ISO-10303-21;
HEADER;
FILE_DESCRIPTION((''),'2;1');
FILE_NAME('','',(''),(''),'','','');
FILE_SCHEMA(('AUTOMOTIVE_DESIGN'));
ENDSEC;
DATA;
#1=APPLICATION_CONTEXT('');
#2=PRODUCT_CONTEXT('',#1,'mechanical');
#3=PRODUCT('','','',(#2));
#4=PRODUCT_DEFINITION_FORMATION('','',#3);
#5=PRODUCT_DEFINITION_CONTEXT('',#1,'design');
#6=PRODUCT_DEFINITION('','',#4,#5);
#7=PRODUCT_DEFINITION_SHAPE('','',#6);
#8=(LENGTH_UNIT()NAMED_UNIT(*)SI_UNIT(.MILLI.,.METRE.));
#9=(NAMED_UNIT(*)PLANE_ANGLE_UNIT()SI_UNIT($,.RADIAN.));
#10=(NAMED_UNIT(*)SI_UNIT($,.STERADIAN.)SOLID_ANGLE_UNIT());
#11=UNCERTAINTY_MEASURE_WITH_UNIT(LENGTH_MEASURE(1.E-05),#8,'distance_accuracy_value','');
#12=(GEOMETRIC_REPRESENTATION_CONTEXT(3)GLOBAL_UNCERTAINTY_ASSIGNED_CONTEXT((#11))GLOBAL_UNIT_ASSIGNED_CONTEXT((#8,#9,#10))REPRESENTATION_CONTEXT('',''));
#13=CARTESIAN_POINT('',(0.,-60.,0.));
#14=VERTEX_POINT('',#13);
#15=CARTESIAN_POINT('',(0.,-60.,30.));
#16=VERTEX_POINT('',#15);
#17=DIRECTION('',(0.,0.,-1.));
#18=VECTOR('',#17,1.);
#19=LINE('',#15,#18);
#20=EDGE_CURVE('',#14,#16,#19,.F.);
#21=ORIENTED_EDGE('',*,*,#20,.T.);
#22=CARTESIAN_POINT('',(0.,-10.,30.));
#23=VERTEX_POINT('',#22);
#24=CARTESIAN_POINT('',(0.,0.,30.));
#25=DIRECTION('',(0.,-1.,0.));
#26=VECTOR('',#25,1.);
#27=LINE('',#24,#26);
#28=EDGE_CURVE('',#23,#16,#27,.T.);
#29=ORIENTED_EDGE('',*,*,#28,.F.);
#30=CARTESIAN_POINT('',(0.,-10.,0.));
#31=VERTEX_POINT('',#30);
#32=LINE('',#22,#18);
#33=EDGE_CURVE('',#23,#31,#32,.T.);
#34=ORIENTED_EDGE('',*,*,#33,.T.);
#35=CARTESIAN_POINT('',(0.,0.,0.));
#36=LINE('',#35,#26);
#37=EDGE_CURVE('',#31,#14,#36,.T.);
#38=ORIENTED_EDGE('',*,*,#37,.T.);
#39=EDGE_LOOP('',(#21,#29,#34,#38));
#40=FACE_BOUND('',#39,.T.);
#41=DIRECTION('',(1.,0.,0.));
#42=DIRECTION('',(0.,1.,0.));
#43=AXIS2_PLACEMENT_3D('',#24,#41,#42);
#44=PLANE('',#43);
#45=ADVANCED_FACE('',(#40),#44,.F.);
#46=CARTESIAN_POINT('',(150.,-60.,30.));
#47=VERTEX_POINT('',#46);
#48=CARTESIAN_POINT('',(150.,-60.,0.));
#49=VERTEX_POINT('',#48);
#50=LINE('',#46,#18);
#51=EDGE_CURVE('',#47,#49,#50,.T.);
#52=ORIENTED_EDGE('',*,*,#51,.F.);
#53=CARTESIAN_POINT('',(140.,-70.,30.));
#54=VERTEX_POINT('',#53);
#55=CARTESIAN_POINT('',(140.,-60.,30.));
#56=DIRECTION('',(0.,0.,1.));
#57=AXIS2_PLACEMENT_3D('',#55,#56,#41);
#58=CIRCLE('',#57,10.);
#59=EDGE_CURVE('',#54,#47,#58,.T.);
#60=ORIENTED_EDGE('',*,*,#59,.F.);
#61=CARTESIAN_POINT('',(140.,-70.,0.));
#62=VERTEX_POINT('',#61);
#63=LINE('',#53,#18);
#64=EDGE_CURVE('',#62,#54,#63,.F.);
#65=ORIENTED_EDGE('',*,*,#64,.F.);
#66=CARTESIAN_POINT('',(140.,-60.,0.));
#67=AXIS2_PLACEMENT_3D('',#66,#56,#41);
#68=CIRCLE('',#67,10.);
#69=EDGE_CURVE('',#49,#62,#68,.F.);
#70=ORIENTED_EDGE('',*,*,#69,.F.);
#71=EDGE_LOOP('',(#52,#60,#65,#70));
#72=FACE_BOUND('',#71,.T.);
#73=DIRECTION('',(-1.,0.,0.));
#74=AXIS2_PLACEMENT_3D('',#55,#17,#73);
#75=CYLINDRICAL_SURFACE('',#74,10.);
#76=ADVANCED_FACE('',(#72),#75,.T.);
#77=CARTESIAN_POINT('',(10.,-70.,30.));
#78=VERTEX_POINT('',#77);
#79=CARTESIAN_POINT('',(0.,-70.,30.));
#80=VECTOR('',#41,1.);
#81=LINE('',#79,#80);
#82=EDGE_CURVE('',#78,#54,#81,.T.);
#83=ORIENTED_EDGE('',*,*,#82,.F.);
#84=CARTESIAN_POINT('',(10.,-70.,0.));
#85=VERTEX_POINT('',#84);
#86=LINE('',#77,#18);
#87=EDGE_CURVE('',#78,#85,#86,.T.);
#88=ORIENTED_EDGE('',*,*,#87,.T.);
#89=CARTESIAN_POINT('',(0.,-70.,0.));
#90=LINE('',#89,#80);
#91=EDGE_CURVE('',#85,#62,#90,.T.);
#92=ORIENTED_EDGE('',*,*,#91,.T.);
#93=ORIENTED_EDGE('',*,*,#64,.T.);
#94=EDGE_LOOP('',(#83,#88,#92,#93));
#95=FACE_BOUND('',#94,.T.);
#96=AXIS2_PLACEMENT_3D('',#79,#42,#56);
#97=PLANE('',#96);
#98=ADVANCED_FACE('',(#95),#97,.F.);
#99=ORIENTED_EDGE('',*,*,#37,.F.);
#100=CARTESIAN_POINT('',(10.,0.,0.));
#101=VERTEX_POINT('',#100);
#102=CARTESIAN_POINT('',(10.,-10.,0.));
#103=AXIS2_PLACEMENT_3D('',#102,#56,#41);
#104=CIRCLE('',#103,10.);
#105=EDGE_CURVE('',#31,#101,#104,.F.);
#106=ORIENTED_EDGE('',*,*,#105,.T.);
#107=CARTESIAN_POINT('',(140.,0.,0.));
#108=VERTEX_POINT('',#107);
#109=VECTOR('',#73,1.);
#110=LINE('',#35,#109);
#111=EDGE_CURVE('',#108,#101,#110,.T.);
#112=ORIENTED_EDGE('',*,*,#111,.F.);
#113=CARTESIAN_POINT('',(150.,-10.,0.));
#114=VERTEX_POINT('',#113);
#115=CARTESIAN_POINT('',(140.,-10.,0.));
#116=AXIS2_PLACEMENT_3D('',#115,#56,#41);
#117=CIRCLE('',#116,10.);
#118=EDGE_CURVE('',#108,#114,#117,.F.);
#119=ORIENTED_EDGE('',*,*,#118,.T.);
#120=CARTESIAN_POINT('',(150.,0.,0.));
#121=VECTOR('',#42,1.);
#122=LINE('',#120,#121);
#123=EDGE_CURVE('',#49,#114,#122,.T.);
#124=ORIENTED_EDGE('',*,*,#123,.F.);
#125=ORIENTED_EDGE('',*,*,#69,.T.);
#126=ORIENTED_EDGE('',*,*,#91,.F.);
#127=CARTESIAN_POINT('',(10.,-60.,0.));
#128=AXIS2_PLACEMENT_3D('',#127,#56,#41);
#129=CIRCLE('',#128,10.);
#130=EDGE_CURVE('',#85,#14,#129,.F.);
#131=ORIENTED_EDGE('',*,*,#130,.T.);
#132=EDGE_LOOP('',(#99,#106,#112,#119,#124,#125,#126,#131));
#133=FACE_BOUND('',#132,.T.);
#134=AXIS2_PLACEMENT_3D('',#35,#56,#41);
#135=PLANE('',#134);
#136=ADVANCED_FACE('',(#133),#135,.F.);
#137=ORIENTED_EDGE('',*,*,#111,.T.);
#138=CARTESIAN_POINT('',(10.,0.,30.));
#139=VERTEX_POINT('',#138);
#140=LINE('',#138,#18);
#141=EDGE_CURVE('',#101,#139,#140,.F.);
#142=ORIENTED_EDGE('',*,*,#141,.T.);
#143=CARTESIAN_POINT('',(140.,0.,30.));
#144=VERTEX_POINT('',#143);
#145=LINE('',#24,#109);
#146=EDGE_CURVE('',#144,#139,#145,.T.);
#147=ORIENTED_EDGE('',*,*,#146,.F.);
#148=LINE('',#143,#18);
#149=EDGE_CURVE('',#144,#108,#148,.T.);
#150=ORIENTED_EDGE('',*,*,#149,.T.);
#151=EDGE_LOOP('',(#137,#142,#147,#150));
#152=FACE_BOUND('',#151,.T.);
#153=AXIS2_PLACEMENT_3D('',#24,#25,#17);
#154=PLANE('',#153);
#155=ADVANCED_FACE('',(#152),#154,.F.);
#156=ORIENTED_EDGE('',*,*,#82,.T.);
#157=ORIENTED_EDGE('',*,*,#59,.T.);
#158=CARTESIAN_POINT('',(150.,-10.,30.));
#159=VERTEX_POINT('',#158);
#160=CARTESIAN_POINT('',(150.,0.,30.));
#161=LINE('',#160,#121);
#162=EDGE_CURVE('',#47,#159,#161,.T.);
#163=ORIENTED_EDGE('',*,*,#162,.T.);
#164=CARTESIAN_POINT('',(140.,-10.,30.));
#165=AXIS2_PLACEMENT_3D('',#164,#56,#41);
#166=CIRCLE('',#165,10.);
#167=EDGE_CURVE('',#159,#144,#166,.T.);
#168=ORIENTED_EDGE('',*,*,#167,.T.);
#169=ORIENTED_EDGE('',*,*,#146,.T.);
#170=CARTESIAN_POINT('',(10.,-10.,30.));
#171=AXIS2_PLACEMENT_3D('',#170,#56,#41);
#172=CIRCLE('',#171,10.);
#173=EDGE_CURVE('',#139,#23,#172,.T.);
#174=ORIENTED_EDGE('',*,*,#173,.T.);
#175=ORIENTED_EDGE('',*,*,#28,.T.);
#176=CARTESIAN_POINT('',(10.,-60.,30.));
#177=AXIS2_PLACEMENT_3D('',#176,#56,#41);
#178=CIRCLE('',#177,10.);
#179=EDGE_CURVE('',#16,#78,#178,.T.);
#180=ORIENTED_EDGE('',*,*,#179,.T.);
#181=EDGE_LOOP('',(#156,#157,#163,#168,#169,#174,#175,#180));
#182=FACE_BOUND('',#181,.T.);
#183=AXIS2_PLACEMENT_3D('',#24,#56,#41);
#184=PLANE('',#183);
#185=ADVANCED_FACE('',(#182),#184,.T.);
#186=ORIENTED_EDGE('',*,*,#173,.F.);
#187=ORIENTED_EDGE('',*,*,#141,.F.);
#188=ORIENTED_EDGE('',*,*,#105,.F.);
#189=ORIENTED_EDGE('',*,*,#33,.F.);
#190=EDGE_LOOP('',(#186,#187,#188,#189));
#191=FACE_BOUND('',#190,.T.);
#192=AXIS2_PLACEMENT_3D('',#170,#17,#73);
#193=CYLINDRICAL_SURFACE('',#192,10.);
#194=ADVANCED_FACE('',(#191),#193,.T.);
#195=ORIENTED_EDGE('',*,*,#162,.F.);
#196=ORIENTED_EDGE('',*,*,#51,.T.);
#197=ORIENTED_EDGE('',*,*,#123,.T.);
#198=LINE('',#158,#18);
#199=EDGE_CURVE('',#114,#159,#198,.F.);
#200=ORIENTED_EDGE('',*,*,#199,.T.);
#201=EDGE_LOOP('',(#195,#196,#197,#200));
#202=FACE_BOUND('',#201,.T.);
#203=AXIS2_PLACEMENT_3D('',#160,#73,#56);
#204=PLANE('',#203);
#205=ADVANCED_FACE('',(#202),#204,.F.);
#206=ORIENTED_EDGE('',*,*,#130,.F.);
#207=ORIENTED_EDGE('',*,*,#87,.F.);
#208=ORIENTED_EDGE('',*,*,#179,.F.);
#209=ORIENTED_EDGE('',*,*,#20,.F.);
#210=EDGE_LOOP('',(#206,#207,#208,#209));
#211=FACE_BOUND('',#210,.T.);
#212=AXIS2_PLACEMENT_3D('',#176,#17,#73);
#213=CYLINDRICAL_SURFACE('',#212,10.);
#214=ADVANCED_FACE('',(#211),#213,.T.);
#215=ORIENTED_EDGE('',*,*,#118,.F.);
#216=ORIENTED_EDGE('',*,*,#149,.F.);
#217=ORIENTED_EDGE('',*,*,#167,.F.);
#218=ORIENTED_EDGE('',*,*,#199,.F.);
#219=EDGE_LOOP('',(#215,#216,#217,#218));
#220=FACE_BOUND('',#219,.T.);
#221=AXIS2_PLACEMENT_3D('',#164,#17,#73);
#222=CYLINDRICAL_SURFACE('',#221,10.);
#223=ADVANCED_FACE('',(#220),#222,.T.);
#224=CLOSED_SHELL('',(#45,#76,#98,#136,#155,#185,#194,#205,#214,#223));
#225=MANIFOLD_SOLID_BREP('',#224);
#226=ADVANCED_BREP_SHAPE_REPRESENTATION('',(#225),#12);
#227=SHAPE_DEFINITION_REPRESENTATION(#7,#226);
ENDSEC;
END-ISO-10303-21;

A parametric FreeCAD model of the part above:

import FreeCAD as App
import Part
import Sketcher

V = App.Vector
Q = App.Units.Quantity


def edges_at(feature, points):
    """Names of the edges that pass closest to the given points."""
    edges = feature.Shape.Edges
    near = lambda p: min(range(len(edges)), key=lambda i: edges[i].distToShape(Part.Vertex(*p))[0])
    return sorted({f"Edge{near(p) + 1}" for p in points})


def add_polygon(sketch, points):
    """Adds a closed chain of lines whose ends are joined by coincident constraints."""
    first, n = sketch.GeometryCount, len(points)
    for a, b in zip(points, points[1:] + points[:1]):
        sketch.addGeometry(Part.LineSegment(App.Vector(*a, 0), App.Vector(*b, 0)), False)
    for i in range(n):
        sketch.addConstraint(Sketcher.Constraint("Coincident", first + i, 2, first + (i + 1) % n, 1))

doc = App.newDocument("Part")
body = doc.addObject("PartDesign::Body", "Body")

sketch1 = body.newObject("Sketcher::SketchObject", "Sketch")
sketch1.AttachmentSupport = (doc.getObject("XY_Plane"), [""])
sketch1.MapMode = "FlatFace"
add_polygon(sketch1, [(0, 0), (0, -70), (150, -70), (150, 0)])
sketch1.addConstraint(Sketcher.Constraint("Vertical", 0))
sketch1.addConstraint(Sketcher.Constraint("Horizontal", 1))
sketch1.addConstraint(Sketcher.Constraint("Vertical", 2))
sketch1.addConstraint(Sketcher.Constraint("Horizontal", 3))
sketch1.addConstraint(Sketcher.Constraint("Coincident", 3, 2, -1, 1))
sketch1.addConstraint(Sketcher.Constraint("DistanceX", 1, 1, 1, 2, Q("150 mm")))
sketch1.addConstraint(Sketcher.Constraint("DistanceY", 0, 2, 0, 1, Q("70 mm")))
pad1 = body.newObject("PartDesign::Pad", "Pad")
pad1.Profile = sketch1
pad1.Length = 30
doc.recompute()

fillet = body.newObject("PartDesign::Fillet", "Fillet")
fillet.Base = (pad1, edges_at(pad1, [
    (0, 0, 15),
    (150, 0, 15),
    (150, -70, 15),
    (0, -70, 15),
]))
fillet.Radius = 10

doc.recompute()
